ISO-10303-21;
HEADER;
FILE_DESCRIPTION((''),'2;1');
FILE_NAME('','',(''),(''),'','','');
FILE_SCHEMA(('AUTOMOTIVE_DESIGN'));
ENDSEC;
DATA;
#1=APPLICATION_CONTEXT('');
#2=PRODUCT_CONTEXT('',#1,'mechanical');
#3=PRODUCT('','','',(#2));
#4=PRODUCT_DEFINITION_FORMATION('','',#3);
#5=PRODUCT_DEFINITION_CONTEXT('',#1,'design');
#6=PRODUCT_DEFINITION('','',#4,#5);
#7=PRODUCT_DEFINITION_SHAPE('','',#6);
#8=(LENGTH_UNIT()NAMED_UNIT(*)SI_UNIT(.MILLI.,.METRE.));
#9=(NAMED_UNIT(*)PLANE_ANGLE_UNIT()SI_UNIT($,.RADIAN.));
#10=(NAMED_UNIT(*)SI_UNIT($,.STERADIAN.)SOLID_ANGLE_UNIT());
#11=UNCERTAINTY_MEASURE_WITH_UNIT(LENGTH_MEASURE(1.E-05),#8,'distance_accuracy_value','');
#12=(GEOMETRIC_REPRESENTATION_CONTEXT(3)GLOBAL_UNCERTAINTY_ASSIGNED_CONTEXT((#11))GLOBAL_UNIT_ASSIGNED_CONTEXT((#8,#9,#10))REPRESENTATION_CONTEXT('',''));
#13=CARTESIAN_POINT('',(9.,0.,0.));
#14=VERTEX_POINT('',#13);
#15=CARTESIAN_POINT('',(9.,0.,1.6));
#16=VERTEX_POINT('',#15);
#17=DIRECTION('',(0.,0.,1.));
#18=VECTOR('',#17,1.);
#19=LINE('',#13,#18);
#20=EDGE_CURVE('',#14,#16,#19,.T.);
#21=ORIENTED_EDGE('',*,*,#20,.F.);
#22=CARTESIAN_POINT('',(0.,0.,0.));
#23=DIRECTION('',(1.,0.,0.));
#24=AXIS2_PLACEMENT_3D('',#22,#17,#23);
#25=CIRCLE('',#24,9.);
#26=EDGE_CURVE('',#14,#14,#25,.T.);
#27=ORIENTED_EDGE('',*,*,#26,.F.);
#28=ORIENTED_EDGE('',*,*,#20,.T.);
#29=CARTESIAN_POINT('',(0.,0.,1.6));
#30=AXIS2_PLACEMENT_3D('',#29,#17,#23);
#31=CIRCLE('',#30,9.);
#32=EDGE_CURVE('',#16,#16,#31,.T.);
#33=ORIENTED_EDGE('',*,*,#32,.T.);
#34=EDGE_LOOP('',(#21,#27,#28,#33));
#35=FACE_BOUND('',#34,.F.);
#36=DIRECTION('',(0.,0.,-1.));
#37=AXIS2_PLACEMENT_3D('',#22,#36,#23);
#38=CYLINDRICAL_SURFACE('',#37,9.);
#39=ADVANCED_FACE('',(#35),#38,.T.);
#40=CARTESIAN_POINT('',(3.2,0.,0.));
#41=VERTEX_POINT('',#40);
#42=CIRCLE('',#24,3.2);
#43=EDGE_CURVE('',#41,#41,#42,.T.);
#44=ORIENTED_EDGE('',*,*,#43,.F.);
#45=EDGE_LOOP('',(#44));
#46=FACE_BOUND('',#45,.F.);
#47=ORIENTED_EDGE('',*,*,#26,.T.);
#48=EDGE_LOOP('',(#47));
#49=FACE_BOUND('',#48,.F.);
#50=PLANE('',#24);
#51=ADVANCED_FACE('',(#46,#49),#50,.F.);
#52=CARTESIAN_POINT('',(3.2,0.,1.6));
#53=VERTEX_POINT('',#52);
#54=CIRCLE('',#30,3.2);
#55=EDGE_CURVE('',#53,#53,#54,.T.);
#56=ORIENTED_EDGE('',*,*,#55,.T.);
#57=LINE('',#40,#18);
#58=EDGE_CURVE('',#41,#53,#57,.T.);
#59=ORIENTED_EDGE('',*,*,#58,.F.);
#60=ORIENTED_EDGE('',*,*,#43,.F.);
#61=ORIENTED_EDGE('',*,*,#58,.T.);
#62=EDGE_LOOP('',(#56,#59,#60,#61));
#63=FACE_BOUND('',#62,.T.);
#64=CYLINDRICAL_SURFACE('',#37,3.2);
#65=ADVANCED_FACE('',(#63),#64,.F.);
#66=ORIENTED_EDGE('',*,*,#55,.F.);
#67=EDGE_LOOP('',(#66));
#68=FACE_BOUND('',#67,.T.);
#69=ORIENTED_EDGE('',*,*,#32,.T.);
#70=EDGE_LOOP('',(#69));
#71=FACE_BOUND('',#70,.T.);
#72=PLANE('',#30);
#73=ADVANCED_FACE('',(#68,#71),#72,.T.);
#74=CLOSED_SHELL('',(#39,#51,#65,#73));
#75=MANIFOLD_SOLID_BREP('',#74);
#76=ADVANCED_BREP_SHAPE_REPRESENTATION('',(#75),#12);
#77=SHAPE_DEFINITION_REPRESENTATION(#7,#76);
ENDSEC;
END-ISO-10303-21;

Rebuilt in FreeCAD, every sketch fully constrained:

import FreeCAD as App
import Part
import Sketcher
from FreeCAD import Vector

doc = App.newDocument("Part")
body = doc.addObject("PartDesign::Body", "Body")

sketch1 = body.newObject("Sketcher::SketchObject", "Sketch")
sketch1.AttachmentSupport = (doc.getObject("XY_Plane"), [""])
sketch1.MapMode = "FlatFace"
sketch1.addGeometry([
    Part.Circle(Vector(0, 0, 0), Vector(0, 0, 1), 9),
    Part.Circle(Vector(0, 0, 0), Vector(0, 0, 1), 3.2),
], False)
sketch1.addConstraint([
    Sketcher.Constraint("Coincident", 0, 3, -1, 1),
    Sketcher.Constraint("Coincident", 1, 3, -1, 1),
    Sketcher.Constraint("Diameter", 0, 18.0),
    Sketcher.Constraint("Diameter", 1, 6.4),
])
pad1 = body.newObject("PartDesign::Pad", "Pad")
pad1.Profile = sketch1
pad1.Length = 1.6

doc.recompute()
